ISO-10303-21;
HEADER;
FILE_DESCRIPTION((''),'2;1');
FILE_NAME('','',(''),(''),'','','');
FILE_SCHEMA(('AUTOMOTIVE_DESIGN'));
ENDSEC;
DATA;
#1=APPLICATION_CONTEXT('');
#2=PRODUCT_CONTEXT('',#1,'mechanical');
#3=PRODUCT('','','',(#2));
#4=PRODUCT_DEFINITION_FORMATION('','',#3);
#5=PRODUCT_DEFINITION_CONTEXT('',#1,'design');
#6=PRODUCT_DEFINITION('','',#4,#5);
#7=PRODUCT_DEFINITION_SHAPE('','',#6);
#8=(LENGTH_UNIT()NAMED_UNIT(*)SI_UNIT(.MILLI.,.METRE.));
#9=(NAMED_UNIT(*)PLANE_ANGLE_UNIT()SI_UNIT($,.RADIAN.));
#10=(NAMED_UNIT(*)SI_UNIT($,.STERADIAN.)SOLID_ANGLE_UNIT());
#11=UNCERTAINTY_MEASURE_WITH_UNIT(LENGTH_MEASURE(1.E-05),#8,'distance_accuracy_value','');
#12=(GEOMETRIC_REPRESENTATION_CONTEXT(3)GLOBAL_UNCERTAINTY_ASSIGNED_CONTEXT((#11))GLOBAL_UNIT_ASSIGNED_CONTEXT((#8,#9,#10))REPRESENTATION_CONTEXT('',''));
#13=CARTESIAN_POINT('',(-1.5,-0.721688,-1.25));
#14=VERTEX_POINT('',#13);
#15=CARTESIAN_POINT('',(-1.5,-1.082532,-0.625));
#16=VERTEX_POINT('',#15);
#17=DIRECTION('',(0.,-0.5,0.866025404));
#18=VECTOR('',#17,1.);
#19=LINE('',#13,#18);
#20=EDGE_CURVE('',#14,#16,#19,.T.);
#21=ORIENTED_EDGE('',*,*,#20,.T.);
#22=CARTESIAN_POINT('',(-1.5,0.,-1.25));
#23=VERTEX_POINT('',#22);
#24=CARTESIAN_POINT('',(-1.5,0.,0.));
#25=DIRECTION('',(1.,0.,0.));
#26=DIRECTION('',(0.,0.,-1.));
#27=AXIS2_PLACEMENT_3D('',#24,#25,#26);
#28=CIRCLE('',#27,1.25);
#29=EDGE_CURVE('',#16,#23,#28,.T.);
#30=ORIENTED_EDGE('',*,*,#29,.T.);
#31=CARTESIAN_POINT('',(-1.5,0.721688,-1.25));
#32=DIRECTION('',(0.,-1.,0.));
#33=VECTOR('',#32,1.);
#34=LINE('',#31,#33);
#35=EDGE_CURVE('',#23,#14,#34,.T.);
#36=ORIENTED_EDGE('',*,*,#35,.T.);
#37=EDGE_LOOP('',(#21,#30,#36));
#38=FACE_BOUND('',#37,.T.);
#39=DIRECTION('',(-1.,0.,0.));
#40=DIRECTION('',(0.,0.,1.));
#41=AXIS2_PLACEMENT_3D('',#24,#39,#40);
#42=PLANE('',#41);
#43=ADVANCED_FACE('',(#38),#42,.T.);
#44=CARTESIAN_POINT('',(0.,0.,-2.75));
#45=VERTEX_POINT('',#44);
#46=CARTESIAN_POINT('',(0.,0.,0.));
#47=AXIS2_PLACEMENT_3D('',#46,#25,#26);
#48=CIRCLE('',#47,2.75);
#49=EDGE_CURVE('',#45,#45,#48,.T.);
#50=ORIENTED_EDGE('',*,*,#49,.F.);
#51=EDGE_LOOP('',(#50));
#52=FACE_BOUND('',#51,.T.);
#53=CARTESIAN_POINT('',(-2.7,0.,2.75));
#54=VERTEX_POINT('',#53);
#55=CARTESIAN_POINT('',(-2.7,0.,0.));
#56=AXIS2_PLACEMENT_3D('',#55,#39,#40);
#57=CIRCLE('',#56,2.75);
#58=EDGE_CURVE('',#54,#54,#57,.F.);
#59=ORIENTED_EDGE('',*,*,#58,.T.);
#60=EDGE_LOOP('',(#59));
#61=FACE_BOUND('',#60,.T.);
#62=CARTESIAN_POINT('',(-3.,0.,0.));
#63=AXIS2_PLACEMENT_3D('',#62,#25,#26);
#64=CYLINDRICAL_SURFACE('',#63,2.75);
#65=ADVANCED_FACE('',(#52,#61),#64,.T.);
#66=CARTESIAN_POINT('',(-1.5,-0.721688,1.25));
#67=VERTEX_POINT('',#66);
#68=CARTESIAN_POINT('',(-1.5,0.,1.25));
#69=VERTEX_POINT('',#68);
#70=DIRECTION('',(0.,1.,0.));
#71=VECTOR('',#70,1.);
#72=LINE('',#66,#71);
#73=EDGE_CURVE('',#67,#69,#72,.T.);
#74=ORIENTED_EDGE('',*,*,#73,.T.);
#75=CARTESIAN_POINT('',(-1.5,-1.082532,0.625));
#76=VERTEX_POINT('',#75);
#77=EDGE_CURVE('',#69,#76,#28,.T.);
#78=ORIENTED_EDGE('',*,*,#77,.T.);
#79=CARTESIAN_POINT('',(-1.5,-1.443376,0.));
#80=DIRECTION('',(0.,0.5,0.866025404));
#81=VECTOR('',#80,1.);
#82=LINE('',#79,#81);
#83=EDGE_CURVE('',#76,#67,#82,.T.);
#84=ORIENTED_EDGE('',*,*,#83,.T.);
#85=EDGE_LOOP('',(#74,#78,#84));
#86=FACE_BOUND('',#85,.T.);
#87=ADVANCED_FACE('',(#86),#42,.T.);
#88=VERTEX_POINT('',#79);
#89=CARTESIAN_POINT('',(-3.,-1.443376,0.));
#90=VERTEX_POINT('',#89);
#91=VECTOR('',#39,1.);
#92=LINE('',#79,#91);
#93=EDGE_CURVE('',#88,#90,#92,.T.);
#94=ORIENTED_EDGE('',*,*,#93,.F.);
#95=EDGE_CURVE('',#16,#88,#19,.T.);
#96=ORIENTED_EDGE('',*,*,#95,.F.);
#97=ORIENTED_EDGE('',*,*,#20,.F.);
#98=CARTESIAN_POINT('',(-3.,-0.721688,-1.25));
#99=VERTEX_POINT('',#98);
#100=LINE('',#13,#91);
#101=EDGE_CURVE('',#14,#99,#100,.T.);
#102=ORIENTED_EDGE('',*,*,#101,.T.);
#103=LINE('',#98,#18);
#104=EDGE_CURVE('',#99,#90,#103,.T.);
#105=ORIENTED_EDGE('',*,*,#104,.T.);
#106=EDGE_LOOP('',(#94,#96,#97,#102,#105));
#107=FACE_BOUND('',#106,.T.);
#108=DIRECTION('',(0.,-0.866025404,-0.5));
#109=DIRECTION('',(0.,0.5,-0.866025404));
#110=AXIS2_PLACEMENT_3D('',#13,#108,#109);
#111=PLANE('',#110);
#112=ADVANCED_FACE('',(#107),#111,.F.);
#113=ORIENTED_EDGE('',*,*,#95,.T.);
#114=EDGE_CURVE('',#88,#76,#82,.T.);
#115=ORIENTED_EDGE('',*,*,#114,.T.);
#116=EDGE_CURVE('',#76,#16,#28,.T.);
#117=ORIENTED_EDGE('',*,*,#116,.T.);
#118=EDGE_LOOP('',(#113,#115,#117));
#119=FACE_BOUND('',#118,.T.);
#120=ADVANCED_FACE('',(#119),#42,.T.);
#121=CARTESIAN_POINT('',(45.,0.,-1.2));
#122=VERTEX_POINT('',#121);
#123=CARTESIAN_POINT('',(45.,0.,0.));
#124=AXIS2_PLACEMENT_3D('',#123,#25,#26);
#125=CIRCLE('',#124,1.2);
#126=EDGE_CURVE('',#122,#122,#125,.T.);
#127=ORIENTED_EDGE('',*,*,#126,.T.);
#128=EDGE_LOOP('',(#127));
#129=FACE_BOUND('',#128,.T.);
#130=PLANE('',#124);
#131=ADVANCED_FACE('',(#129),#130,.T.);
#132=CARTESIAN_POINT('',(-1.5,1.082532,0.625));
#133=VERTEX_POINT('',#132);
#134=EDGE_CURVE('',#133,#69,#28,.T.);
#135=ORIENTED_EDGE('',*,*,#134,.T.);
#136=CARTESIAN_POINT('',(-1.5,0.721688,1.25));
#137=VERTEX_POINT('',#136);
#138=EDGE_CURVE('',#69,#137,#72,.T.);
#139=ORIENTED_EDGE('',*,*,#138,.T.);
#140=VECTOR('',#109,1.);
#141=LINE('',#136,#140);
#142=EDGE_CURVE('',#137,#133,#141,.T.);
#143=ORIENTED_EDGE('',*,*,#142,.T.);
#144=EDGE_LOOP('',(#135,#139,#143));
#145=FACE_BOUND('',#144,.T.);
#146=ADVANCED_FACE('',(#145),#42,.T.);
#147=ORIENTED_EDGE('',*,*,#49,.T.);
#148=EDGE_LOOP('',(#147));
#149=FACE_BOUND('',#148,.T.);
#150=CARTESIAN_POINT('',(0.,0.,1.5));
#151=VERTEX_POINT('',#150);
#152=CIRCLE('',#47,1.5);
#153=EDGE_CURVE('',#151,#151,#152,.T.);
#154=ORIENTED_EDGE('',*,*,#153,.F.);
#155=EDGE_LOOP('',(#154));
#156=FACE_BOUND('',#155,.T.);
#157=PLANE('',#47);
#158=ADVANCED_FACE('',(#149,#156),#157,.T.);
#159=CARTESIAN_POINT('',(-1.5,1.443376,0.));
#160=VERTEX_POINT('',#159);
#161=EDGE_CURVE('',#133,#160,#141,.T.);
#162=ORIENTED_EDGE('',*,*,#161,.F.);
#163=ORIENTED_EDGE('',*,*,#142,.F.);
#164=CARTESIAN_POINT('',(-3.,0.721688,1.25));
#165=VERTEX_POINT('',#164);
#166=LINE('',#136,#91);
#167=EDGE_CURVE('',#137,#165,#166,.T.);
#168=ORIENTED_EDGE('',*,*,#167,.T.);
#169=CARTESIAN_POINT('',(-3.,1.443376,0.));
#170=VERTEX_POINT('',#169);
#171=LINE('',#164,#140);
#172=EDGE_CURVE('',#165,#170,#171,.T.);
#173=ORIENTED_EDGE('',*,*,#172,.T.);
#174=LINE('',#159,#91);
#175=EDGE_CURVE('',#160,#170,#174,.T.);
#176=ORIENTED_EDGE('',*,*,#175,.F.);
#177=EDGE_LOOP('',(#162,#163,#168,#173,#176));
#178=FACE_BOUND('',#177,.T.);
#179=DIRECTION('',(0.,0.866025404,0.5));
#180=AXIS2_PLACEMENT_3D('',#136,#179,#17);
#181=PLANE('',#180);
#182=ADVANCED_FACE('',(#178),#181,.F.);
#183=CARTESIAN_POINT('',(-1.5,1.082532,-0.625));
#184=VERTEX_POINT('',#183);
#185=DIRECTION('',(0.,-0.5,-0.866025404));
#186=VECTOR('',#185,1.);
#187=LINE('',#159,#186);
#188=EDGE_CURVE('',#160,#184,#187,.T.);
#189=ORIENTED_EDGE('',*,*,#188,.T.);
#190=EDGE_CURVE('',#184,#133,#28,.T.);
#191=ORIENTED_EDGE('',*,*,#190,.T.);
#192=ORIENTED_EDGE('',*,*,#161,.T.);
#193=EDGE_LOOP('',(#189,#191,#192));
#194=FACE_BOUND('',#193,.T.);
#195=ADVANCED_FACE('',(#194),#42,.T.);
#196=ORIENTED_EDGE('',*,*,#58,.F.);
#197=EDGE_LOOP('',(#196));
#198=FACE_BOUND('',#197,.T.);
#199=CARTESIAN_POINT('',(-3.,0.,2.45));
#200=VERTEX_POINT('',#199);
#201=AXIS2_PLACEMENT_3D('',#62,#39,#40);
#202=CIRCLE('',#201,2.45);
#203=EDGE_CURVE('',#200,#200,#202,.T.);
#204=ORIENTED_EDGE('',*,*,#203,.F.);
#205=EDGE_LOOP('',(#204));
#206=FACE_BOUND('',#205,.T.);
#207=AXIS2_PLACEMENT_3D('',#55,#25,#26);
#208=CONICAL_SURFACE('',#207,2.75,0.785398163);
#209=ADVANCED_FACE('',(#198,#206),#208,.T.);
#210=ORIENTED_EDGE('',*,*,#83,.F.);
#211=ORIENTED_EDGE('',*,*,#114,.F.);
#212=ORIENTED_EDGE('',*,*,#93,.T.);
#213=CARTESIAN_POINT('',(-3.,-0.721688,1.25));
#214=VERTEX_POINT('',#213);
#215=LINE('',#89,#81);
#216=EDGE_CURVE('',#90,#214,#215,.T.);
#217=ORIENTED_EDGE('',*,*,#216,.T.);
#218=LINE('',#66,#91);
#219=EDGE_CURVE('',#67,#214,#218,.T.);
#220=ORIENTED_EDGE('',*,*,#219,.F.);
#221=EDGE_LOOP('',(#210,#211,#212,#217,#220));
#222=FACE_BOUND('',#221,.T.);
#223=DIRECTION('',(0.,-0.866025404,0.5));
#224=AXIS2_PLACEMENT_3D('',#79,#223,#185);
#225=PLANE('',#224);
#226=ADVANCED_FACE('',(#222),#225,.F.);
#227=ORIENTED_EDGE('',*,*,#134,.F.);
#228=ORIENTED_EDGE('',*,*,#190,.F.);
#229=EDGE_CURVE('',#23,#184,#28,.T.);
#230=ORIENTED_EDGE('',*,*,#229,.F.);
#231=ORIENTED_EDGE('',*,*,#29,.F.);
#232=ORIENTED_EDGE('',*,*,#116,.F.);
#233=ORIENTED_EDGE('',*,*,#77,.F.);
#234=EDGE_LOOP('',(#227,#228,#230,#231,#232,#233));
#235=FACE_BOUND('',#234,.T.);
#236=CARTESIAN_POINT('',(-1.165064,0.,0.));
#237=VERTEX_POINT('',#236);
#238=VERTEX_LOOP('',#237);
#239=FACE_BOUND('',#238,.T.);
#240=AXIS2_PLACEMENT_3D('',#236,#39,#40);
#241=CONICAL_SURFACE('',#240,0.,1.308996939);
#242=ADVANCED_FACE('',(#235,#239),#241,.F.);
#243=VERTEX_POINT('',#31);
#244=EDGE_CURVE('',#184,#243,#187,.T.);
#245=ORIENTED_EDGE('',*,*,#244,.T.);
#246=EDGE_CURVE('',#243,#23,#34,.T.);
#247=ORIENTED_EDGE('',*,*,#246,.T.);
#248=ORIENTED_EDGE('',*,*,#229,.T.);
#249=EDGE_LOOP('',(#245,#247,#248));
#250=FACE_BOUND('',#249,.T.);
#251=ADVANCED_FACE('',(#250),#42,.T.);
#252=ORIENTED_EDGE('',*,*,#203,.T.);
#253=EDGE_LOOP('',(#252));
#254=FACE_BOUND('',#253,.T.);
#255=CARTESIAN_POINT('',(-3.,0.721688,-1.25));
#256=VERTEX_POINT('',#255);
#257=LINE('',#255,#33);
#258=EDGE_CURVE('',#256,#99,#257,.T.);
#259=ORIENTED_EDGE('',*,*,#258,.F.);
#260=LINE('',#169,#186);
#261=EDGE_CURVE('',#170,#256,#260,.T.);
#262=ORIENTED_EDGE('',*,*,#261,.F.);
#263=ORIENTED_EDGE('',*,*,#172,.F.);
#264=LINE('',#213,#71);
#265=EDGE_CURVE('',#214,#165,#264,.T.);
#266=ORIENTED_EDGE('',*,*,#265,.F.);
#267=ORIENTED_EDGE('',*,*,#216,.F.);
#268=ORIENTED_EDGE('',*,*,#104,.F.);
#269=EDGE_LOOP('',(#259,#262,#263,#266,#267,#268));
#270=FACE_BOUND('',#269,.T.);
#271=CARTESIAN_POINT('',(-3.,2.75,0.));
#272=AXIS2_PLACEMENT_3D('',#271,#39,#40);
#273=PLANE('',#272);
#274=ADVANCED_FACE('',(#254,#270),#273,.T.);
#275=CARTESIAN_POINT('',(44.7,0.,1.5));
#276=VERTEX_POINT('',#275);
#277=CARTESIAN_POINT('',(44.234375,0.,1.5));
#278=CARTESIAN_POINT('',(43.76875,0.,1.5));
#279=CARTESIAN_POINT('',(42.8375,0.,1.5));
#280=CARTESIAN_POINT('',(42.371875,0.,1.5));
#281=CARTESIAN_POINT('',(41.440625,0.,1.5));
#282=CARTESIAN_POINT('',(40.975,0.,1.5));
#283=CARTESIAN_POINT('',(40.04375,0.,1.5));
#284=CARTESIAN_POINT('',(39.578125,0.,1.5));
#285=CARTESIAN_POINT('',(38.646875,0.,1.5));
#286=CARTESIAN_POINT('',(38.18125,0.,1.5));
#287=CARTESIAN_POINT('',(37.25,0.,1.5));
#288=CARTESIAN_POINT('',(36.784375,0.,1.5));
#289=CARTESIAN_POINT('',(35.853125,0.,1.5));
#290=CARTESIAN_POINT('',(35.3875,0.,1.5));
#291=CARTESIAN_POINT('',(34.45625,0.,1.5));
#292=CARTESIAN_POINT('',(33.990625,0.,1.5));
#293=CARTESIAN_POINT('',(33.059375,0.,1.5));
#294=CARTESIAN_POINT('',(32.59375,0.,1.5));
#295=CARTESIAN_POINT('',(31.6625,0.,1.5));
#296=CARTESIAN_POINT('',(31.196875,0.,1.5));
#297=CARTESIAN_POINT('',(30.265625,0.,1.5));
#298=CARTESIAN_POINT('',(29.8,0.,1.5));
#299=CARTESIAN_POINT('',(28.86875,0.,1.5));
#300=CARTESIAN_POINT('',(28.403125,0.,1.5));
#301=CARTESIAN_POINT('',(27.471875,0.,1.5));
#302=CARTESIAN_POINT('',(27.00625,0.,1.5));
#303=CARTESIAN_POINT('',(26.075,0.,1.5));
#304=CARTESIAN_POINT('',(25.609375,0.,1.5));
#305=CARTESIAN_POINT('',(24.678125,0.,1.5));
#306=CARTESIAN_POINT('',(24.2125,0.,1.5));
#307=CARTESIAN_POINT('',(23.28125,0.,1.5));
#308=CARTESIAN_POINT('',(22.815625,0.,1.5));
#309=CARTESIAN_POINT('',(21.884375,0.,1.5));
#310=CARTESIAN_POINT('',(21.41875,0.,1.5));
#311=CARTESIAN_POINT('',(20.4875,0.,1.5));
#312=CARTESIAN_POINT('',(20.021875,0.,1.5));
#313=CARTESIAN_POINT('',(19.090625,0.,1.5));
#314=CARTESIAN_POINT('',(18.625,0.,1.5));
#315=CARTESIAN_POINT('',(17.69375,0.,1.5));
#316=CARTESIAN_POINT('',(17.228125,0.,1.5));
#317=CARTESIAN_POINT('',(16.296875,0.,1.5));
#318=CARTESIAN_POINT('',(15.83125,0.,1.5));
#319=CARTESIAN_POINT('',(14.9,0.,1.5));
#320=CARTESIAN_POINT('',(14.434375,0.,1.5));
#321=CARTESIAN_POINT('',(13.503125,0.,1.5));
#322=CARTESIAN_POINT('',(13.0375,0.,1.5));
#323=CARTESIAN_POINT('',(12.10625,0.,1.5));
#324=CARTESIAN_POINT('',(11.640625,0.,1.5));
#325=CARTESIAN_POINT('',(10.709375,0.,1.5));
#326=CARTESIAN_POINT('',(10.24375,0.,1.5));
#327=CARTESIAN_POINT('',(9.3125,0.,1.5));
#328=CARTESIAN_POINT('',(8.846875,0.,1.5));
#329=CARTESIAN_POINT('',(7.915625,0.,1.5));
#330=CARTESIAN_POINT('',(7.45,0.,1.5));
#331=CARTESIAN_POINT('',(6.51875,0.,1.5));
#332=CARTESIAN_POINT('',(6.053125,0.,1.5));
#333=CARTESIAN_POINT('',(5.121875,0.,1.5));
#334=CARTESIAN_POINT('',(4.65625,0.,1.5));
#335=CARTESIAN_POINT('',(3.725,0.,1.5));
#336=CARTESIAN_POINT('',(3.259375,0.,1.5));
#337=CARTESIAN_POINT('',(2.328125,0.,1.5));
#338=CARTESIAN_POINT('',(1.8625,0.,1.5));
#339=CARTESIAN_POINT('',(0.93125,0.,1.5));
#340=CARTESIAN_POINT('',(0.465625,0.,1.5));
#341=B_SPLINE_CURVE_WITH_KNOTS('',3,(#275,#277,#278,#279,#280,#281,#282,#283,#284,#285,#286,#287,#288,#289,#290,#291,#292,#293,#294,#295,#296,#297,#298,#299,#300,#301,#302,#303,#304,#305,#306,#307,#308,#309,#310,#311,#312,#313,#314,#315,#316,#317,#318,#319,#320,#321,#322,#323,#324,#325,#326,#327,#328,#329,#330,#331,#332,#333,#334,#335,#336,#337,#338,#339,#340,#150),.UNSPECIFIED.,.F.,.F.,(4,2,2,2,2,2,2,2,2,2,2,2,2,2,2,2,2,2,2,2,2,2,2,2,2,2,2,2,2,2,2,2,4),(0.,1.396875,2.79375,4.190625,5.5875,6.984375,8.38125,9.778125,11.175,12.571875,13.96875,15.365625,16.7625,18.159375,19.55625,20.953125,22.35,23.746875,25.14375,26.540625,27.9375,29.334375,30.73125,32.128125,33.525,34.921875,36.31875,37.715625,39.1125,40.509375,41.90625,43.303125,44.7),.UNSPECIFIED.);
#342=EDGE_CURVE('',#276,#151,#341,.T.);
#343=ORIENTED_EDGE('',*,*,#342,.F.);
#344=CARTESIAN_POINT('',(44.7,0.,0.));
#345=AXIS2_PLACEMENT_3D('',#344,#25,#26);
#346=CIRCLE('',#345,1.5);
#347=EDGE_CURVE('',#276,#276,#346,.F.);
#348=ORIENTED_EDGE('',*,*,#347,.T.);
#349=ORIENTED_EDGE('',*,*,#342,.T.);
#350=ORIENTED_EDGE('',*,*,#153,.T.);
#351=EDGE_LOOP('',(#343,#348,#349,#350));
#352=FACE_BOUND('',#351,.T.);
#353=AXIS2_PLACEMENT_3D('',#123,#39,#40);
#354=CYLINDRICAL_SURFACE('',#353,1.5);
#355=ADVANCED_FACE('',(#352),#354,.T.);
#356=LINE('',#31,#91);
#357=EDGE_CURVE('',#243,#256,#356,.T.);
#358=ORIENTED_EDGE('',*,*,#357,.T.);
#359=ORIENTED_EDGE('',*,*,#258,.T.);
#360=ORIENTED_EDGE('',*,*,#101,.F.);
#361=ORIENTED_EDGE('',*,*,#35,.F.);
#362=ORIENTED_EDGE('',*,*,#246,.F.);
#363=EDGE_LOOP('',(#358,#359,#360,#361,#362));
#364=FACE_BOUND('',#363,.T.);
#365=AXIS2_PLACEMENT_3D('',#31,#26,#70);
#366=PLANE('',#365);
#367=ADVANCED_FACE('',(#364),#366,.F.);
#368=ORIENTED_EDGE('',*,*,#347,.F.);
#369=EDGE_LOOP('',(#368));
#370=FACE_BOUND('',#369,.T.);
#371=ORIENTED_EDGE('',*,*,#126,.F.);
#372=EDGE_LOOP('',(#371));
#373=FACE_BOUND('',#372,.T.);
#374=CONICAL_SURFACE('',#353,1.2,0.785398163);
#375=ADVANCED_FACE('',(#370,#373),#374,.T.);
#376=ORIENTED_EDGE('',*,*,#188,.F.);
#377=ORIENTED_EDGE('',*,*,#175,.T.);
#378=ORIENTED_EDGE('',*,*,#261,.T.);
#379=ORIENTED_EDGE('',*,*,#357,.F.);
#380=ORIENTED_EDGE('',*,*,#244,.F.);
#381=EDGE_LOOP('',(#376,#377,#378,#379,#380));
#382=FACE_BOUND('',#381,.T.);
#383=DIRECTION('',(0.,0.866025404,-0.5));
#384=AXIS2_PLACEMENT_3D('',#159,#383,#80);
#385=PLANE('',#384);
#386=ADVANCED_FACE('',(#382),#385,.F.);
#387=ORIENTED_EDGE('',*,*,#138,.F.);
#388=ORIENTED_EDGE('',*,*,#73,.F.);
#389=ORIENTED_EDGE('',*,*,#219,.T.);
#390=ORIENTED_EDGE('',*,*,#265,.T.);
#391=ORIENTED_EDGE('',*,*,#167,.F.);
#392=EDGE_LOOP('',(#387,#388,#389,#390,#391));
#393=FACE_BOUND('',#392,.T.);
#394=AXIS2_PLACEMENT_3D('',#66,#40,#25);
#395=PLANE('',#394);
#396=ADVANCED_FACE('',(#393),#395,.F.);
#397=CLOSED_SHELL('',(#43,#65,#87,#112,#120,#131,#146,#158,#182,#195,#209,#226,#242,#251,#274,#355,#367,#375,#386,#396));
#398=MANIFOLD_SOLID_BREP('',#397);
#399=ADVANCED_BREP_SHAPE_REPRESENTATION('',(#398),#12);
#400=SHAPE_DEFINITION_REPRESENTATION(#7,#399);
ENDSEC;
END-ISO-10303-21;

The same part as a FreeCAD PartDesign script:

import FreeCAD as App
import Part
import Sketcher

V = App.Vector
Q = App.Units.Quantity


def edges_at(feature, points):
    """Names of the edges that pass closest to the given points."""
    edges = feature.Shape.Edges
    near = lambda p: min(range(len(edges)), key=lambda i: edges[i].distToShape(Part.Vertex(*p))[0])
    return sorted({f"Edge{near(p) + 1}" for p in points})

doc = App.newDocument("Part")
params = doc.addObject("Spreadsheet::Sheet", "Params")
for row, (alias, value) in enumerate([
    ("sketch1_width", "3 mm"),
    ("sketch1_height", "2.75 mm"),
    ("revolution_angle", "360 deg"),
    ("sketch2_diameter", "3 mm"),
    ("pad1_length", "45 mm"),
    ("pocket1_length", "1.5 mm"),
    ("sketch4_height", "1.25 mm"),
    ("groove_angle", "360 deg"),
    ("chamfer_size", "0.3 mm"),
], start=1):
    params.set(f"A{row}", alias)
    params.set(f"B{row}", "=" + value)
    params.setAlias(f"B{row}", alias)

body = doc.addObject("PartDesign::Body", "Body")

# Sketch on XY plane
sketch1 = body.newObject("Sketcher::SketchObject", "Sketch")
sketch1.AttachmentSupport = (doc.getObject("XY_Plane"), [""])
sketch1.MapMode = "FlatFace"
sketch1.addGeometry([
    Part.LineSegment(V(-3, 2.8, 0), V(-3, 0, 0)),
    Part.LineSegment(V(-3, 0, 0), V(0, 0, 0)),
    Part.LineSegment(V(0, 0, 0), V(0, 2.8, 0)),
    Part.LineSegment(V(0, 2.8, 0), V(-3, 2.8, 0)),
], False)
sketch1.addConstraint([
    Sketcher.Constraint("Coincident", 0, 2, 1, 1),
    Sketcher.Constraint("Coincident", 1, 2, 2, 1),
    Sketcher.Constraint("Coincident", 2, 2, 3, 1),
    Sketcher.Constraint("Coincident", 3, 2, 0, 1),
    Sketcher.Constraint("Vertical", 0),
    Sketcher.Constraint("Horizontal", 1),
    Sketcher.Constraint("Vertical", 2),
    Sketcher.Constraint("Horizontal", 3),
    Sketcher.Constraint("Coincident", 1, 2, -1, 1),
    Sketcher.Constraint("DistanceX", 1, 1, 1, 2, 3.0),
    Sketcher.Constraint("DistanceY", 0, 2, 0, 1, 2.75),
])
sketch1.setExpression("Constraints[9]", "Params.sketch1_width")
sketch1.setExpression("Constraints[10]", "Params.sketch1_height")
revolution = body.newObject("PartDesign::Revolution", "Revolution")
revolution.Profile = sketch1
revolution.ReferenceAxis = (sketch1, ["H_Axis"])
revolution.setExpression("Angle", "Params.revolution_angle")

# Sketch on YZ plane
sketch2 = body.newObject("Sketcher::SketchObject", "Sketch001")
sketch2.AttachmentSupport = (doc.getObject("YZ_Plane"), [""])
sketch2.MapMode = "FlatFace"
sketch2.addGeometry(Part.Circle(V(0, 0, 0), V(0, 0, 1), 1.5), False)
sketch2.addConstraint([
    Sketcher.Constraint("Coincident", 0, 3, -1, 1),
    Sketcher.Constraint("Diameter", 0, 3.0),
])
sketch2.setExpression("Constraints[1]", "Params.sketch2_diameter")
pad1 = body.newObject("PartDesign::Pad", "Pad")
pad1.Profile = sketch2
pad1.setExpression("Length", "Params.pad1_length")

# Sketch on YZ plane
sketch3 = body.newObject("Sketcher::SketchObject", "Sketch002")
sketch3.AttachmentSupport = (doc.getObject("YZ_Plane"), [""])
sketch3.MapMode = "FlatFace"
sketch3.AttachmentOffset = App.Placement(V(0, 0, -3), App.Rotation())
sketch3.addGeometry([
    Part.LineSegment(V(-0.7, 1.2, 0), V(0.7, 1.2, 0)),  # 0
    Part.LineSegment(V(0.7, 1.2, 0), V(1.4, 0, 0)),  # 1
    Part.LineSegment(V(1.4, 0, 0), V(0.7, -1.2, 0)),  # 2
    Part.LineSegment(V(0.7, -1.2, 0), V(-0.7, -1.2, 0)),  # 3
    Part.LineSegment(V(-0.7, -1.2, 0), V(-1.4, 0, 0)),  # 4
    Part.LineSegment(V(-1.4, 0, 0), V(-0.7, 1.2, 0)),  # 5
], False)
sketch3.addConstraint([
    Sketcher.Constraint("Coincident", 0, 2, 1, 1),
    Sketcher.Constraint("Coincident", 1, 2, 2, 1),
    Sketcher.Constraint("Coincident", 2, 2, 3, 1),
    Sketcher.Constraint("Coincident", 3, 2, 4, 1),
    Sketcher.Constraint("Coincident", 4, 2, 5, 1),
    Sketcher.Constraint("Coincident", 5, 2, 0, 1),
    Sketcher.Constraint("Horizontal", 0),
    Sketcher.Constraint("Horizontal", 3),
    Sketcher.Constraint("Symmetric", 0, 2, 3, 2, -1, 1),
    Sketcher.Constraint("Symmetric", 1, 2, 4, 2, -1, 1),
    Sketcher.Constraint("PointOnObject", 1, 2, -1),
    Sketcher.Constraint("Parallel", 2, 5),
    Sketcher.Constraint("Vertical", 0, 2, 2, 2),
    Sketcher.Constraint("Angle", 1, Q("-60 deg")),
    Sketcher.Constraint("DistanceY", 2, 2, 0, 2, 2.5),
    Sketcher.Constraint("DistanceX", 0, 1, 0, 2, 1.443376),
])
pocket1 = body.newObject("PartDesign::Pocket", "Pocket")
pocket1.Profile = sketch3
pocket1.setExpression("Length", "Params.pocket1_length")
pocket1.Reversed = True

# Sketch on XY plane
sketch4 = body.newObject("Sketcher::SketchObject", "Sketch003")
sketch4.AttachmentSupport = (doc.getObject("XY_Plane"), [""])
sketch4.MapMode = "FlatFace"
sketch4.addGeometry([
    Part.LineSegment(V(-1.5, 1.25, 0), V(-1.5, 0, 0)),
    Part.LineSegment(V(-1.5, 0, 0), V(-1.17, 0, 0)),
    Part.LineSegment(V(-1.17, 0, 0), V(-1.5, 1.25, 0)),
], False)
sketch4.addConstraint([
    Sketcher.Constraint("Coincident", 0, 2, 1, 1),
    Sketcher.Constraint("Coincident", 1, 2, 2, 1),
    Sketcher.Constraint("Coincident", 2, 2, 0, 1),
    Sketcher.Constraint("Vertical", 0),
    Sketcher.Constraint("Horizontal", 1),
    Sketcher.Constraint("PointOnObject", 0, 2, -1),
    Sketcher.Constraint("Angle", 2, Q("105 deg")),
    Sketcher.Constraint("DistanceY", 0, 2, 0, 1, 1.25),
    Sketcher.Constraint("DistanceX", 0, 2, -1, 1, 1.5),
])
sketch4.setExpression("Constraints[7]", "Params.sketch4_height")
groove = body.newObject("PartDesign::Groove", "Groove")
groove.Profile = sketch4
groove.ReferenceAxis = (sketch4, ["H_Axis"])
groove.setExpression("Angle", "Params.groove_angle")
doc.recompute()

chamfer = body.newObject("PartDesign::Chamfer", "Chamfer")
chamfer.Base = (groove, edges_at(groove, [(-3, 0, 2.75), (45, 0, -1.5)]))
chamfer.setExpression("Size", "Params.chamfer_size")

doc.recompute()
